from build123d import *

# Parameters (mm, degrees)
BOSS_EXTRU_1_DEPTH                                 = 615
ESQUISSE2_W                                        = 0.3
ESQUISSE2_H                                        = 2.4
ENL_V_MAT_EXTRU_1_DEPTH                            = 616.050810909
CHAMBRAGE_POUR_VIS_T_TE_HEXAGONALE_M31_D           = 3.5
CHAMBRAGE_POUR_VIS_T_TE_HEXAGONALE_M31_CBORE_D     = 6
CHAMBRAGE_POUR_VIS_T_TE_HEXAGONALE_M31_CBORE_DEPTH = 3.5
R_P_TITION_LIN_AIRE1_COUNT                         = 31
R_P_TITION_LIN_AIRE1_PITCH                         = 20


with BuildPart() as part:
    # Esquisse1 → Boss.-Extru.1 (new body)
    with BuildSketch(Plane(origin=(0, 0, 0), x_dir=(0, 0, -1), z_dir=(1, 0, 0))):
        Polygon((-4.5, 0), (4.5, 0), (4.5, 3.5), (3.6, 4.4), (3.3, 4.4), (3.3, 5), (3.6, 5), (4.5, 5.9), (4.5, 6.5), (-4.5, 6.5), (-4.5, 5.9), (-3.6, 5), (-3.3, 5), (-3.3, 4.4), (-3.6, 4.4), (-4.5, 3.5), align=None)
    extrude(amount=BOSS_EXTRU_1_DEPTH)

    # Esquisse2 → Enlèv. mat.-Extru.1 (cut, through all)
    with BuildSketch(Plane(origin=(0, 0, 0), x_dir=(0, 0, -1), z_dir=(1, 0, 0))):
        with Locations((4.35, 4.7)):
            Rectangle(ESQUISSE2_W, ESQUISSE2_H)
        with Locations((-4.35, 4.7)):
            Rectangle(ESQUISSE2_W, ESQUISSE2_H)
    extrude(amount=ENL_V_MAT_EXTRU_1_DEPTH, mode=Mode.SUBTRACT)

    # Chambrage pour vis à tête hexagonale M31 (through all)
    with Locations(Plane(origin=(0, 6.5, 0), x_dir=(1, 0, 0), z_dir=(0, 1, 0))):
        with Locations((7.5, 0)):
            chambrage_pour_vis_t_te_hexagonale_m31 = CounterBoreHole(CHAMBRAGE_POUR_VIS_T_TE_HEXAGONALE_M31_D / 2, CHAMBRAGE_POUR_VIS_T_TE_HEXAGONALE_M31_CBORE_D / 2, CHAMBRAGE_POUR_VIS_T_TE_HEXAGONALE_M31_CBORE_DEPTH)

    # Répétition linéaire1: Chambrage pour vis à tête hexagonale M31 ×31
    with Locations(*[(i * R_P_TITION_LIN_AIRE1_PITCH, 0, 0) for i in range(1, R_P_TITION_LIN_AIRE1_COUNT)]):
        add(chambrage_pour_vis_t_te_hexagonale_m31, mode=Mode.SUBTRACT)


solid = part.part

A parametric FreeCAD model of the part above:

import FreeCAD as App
import Part
import Sketcher

V = App.Vector
Q = App.Units.Quantity

doc = App.newDocument("Part")
body = doc.addObject("PartDesign::Body", "Body")

# Sketch on YZ plane
sketch1 = body.newObject("Sketcher::SketchObject", "Sketch")
sketch1.AttachmentSupport = (doc.getObject("YZ_Plane"), [""])
sketch1.MapMode = "FlatFace"
sketch1.addGeometry([
    Part.LineSegment(V(0, 4.5, 0), V(0, -4.5, 0)),  # 0
    Part.LineSegment(V(0, -4.5, 0), V(3.5, -4.5, 0)),  # 1
    Part.LineSegment(V(3.5, -4.5, 0), V(4.4, -3.6, 0)),  # 2
    Part.LineSegment(V(4.4, -3.6, 0), V(4.4, -3.3, 0)),  # 3
    Part.LineSegment(V(4.4, -3.3, 0), V(5, -3.3, 0)),  # 4
    Part.LineSegment(V(5, -3.3, 0), V(5, -3.6, 0)),  # 5
    Part.LineSegment(V(5, -3.6, 0), V(5.9, -4.5, 0)),  # 6
    Part.LineSegment(V(5.9, -4.5, 0), V(6.5, -4.5, 0)),  # 7
    Part.LineSegment(V(6.5, -4.5, 0), V(6.5, 4.5, 0)),  # 8
    Part.LineSegment(V(6.5, 4.5, 0), V(5.9, 4.5, 0)),  # 9
    Part.LineSegment(V(5.9, 4.5, 0), V(5, 3.6, 0)),  # 10
    Part.LineSegment(V(5, 3.6, 0), V(5, 3.3, 0)),  # 11
    Part.LineSegment(V(5, 3.3, 0), V(4.4, 3.3, 0)),  # 12
    Part.LineSegment(V(4.4, 3.3, 0), V(4.4, 3.6, 0)),  # 13
    Part.LineSegment(V(4.4, 3.6, 0), V(3.5, 4.5, 0)),  # 14
    Part.LineSegment(V(3.5, 4.5, 0), V(0, 4.5, 0)),  # 15
], False)
sketch1.addConstraint([
    Sketcher.Constraint("Coincident", 0, 2, 1, 1),
    Sketcher.Constraint("Coincident", 1, 2, 2, 1),
    Sketcher.Constraint("Coincident", 2, 2, 3, 1),
    Sketcher.Constraint("Coincident", 3, 2, 4, 1),
    Sketcher.Constraint("Coincident", 4, 2, 5, 1),
    Sketcher.Constraint("Coincident", 5, 2, 6, 1),
    Sketcher.Constraint("Coincident", 6, 2, 7, 1),
    Sketcher.Constraint("Coincident", 7, 2, 8, 1),
    Sketcher.Constraint("Coincident", 8, 2, 9, 1),
    Sketcher.Constraint("Coincident", 9, 2, 10, 1),
    Sketcher.Constraint("Coincident", 10, 2, 11, 1),
    Sketcher.Constraint("Coincident", 11, 2, 12, 1),
    Sketcher.Constraint("Coincident", 12, 2, 13, 1),
    Sketcher.Constraint("Coincident", 13, 2, 14, 1),
    Sketcher.Constraint("Coincident", 14, 2, 15, 1),
    Sketcher.Constraint("Coincident", 15, 2, 0, 1),
    Sketcher.Constraint("Vertical", 0),
    Sketcher.Constraint("Horizontal", 1),
    Sketcher.Constraint("Vertical", 3),
    Sketcher.Constraint("Horizontal", 4),
    Sketcher.Constraint("Vertical", 5),
    Sketcher.Constraint("Horizontal", 7),
    Sketcher.Constraint("Vertical", 8),
    Sketcher.Constraint("Horizontal", 9),
    Sketcher.Constraint("Vertical", 11),
    Sketcher.Constraint("Horizontal", 12),
    Sketcher.Constraint("Vertical", 13),
    Sketcher.Constraint("Horizontal", 15),
    Sketcher.Constraint("Symmetric", 0, 2, 15, 2, -1, 1),
    Sketcher.Constraint("Symmetric", 6, 2, 9, 2, -1),
    Sketcher.Constraint("Symmetric", 5, 2, 10, 2, -1),
    Sketcher.Constraint("Symmetric", 3, 2, 12, 2, -1),
    Sketcher.Constraint("Perpendicular", 2, 6),
    Sketcher.Constraint("Perpendicular", 6, 10),
    Sketcher.Constraint("Perpendicular", 10, 14),
    Sketcher.Constraint("Horizontal", 2, 2, 5, 2),
    Sketcher.Constraint("Horizontal", 1, 2, 6, 2),
    Sketcher.Constraint("Horizontal", 10, 2, 13, 2),
    Sketcher.Constraint("Equal", 4, 7),
    Sketcher.Constraint("DistanceY", 0, 2, 0, 1, Q("9 mm")),
    Sketcher.Constraint("DistanceX", 1, 1, 1, 2, Q("3.5 mm")),
    Sketcher.Constraint("DistanceX", 4, 1, 4, 2, Q("0.6 mm")),
    Sketcher.Constraint("DistanceY", 3, 1, 3, 2, Q("0.3 mm")),
    Sketcher.Constraint("DistanceX", -1, 1, 4, 2, Q("5 mm")),
])
pad1 = body.newObject("PartDesign::Pad", "Pad")
pad1.Profile = sketch1
pad1.Length = 615

# Sketch on YZ plane
sketch2 = body.newObject("Sketcher::SketchObject", "Sketch001")
sketch2.AttachmentSupport = (doc.getObject("YZ_Plane"), [""])
sketch2.MapMode = "FlatFace"
sketch2.addGeometry([
    Part.LineSegment(V(5.9, -4.2, 0), V(3.5, -4.2, 0)),  # 0
    Part.LineSegment(V(3.5, -4.2, 0), V(3.5, -4.5, 0)),  # 1
    Part.LineSegment(V(3.5, -4.5, 0), V(5.9, -4.5, 0)),  # 2
    Part.LineSegment(V(5.9, -4.5, 0), V(5.9, -4.2, 0)),  # 3
    Part.LineSegment(V(5.9, 4.5, 0), V(3.5, 4.5, 0)),  # 4
    Part.LineSegment(V(3.5, 4.5, 0), V(3.5, 4.2, 0)),  # 5
    Part.LineSegment(V(3.5, 4.2, 0), V(5.9, 4.2, 0)),  # 6
    Part.LineSegment(V(5.9, 4.2, 0), V(5.9, 4.5, 0)),  # 7
], False)
sketch2.addConstraint([
    Sketcher.Constraint("Coincident", 0, 2, 1, 1),
    Sketcher.Constraint("Coincident", 1, 2, 2, 1),
    Sketcher.Constraint("Coincident", 2, 2, 3, 1),
    Sketcher.Constraint("Coincident", 3, 2, 0, 1),
    Sketcher.Constraint("Coincident", 4, 2, 5, 1),
    Sketcher.Constraint("Coincident", 5, 2, 6, 1),
    Sketcher.Constraint("Coincident", 6, 2, 7, 1),
    Sketcher.Constraint("Coincident", 7, 2, 4, 1),
    Sketcher.Constraint("Horizontal", 0),
    Sketcher.Constraint("Vertical", 1),
    Sketcher.Constraint("Horizontal", 2),
    Sketcher.Constraint("Vertical", 3),
    Sketcher.Constraint("Horizontal", 4),
    Sketcher.Constraint("Vertical", 5),
    Sketcher.Constraint("Horizontal", 6),
    Sketcher.Constraint("Vertical", 7),
    Sketcher.Constraint("Symmetric", 1, 2, 4, 2, -1),
    Sketcher.Constraint("Symmetric", 3, 2, 6, 2, -1),
    Sketcher.Constraint("DistanceX", 0, 2, 0, 1, Q("2.4 mm")),
    Sketcher.Constraint("DistanceY", 1, 2, 1, 1, Q("0.3 mm")),
    Sketcher.Constraint("DistanceY", 1, 2, 4, 2, Q("9 mm")),
    Sketcher.Constraint("DistanceX", -1, 1, 0, 2, Q("3.5 mm")),
])
pocket1 = body.newObject("PartDesign::Pocket", "Pocket")
pocket1.Profile = sketch2
pocket1.Type = "ThroughAll"
pocket1.Reversed = True

# Sketch on XZ plane
sketch3 = body.newObject("Sketcher::SketchObject", "Sketch002")
sketch3.AttachmentSupport = (doc.getObject("XZ_Plane"), [""])
sketch3.MapMode = "FlatFace"
sketch3.AttachmentOffset = App.Placement(V(0, 0, -6.5), App.Rotation())
sketch3.addGeometry(Part.Circle(V(7.5, 0, 0), V(0, 0, 1), 1.8), False)
sketch3.addConstraint([
    Sketcher.Constraint("PointOnObject", 0, 3, -1),
    Sketcher.Constraint("Diameter", 0, Q("3.5 mm")),
    Sketcher.Constraint("DistanceX", -1, 1, 0, 3, Q("7.5 mm")),
])
doc.recompute()
hole = body.newObject("PartDesign::Hole", "Hole")
hole.Profile = sketch3
hole.ThreadType = "None"
hole.Diameter = 3.5
hole.DepthType = "ThroughAll"
hole.HoleCutType = "Counterbore"
hole.HoleCutDiameter = 6
hole.HoleCutDepth = 3.5
hole.Reversed = True
doc.recompute()

linearpattern = body.newObject("PartDesign::LinearPattern", "LinearPattern")
linearpattern.Originals = [hole]
linearpattern.Direction = (doc.getObject("X_Axis"), [""])
linearpattern.Mode = "offset"
linearpattern.Offset = 20
linearpattern.Occurrences = 31
body.Tip = linearpattern

doc.recompute()
